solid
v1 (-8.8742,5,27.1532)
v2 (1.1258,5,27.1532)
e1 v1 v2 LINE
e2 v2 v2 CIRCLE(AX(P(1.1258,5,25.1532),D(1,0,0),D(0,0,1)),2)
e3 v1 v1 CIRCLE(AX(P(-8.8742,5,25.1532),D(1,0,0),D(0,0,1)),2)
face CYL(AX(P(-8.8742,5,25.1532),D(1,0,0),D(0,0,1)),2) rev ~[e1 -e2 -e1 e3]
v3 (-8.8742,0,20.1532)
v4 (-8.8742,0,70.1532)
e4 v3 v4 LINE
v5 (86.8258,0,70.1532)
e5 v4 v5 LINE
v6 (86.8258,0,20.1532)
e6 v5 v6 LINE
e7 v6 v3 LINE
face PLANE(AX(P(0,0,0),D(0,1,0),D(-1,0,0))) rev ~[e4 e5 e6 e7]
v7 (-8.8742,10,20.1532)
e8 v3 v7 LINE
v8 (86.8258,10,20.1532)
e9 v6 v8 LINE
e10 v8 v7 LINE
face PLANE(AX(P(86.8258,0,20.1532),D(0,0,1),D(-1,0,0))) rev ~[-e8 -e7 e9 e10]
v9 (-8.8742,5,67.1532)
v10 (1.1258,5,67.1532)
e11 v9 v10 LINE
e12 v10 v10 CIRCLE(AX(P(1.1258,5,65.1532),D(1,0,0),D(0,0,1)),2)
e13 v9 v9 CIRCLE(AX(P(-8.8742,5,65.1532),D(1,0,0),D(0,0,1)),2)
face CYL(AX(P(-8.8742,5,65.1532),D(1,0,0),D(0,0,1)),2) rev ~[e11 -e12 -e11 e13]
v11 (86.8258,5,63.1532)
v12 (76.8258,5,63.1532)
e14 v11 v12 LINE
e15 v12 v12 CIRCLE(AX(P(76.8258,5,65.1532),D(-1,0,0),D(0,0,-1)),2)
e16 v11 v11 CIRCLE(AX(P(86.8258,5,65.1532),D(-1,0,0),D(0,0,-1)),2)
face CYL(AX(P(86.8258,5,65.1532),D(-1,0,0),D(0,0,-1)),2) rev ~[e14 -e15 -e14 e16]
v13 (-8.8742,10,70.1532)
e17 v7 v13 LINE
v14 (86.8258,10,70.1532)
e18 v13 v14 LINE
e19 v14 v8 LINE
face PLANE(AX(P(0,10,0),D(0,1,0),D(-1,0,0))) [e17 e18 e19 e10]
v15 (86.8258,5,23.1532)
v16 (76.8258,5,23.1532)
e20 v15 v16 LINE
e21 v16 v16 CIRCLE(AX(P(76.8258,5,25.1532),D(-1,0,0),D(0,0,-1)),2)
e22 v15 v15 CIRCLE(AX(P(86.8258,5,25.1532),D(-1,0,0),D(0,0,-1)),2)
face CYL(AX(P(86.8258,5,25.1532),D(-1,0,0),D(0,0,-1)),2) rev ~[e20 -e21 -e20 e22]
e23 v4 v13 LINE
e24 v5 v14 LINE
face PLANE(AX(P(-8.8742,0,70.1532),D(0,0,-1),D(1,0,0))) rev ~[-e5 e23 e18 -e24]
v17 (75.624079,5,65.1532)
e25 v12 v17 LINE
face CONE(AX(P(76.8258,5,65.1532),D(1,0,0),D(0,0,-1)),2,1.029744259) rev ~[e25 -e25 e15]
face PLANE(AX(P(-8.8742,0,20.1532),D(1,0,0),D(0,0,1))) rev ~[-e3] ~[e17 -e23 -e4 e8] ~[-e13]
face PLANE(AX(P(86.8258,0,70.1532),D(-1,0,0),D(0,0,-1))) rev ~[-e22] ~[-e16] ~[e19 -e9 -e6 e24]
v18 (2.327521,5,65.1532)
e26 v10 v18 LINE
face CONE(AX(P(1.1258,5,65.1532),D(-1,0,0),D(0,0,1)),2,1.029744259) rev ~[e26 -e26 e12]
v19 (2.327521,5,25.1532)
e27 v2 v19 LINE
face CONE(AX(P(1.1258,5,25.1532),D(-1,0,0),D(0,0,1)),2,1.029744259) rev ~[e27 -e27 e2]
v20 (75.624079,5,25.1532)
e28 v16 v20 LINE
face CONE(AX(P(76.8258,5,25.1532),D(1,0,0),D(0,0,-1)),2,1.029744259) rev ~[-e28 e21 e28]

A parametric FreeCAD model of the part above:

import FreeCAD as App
import Part
import Sketcher
from FreeCAD import Vector

doc = App.newDocument("Part")
body = doc.addObject("PartDesign::Body", "Body")

sketch1 = body.newObject("Sketcher::SketchObject", "Sketch")
sketch1.AttachmentSupport = (doc.getObject("XZ_Plane"), [""])
sketch1.MapMode = "FlatFace"
sketch1.addGeometry(Part.LineSegment(Vector(-9, 20, 0), Vector(-9, 70, 0)), False)
sketch1.addGeometry(Part.LineSegment(Vector(-9, 70, 0), Vector(87, 70, 0)), False)
sketch1.addGeometry(Part.LineSegment(Vector(87, 70, 0), Vector(87, 20, 0)), False)
sketch1.addGeometry(Part.LineSegment(Vector(87, 20, 0), Vector(-9, 20, 0)), False)
sketch1.addConstraint(Sketcher.Constraint("Coincident", 0, 2, 1, 1))
sketch1.addConstraint(Sketcher.Constraint("Coincident", 1, 2, 2, 1))
sketch1.addConstraint(Sketcher.Constraint("Coincident", 2, 2, 3, 1))
sketch1.addConstraint(Sketcher.Constraint("Coincident", 3, 2, 0, 1))
sketch1.addConstraint(Sketcher.Constraint("Vertical", 0))
sketch1.addConstraint(Sketcher.Constraint("Horizontal", 1))
sketch1.addConstraint(Sketcher.Constraint("Vertical", 2))
sketch1.addConstraint(Sketcher.Constraint("Horizontal", 3))
sketch1.addConstraint(Sketcher.Constraint("DistanceY", 0, 1, 0, 2, 50.0))
sketch1.addConstraint(Sketcher.Constraint("DistanceX", 1, 1, 1, 2, 95.7))
sketch1.addConstraint(Sketcher.Constraint("DistanceX", 0, 2, -1, 1, 8.8742))
sketch1.addConstraint(Sketcher.Constraint("DistanceY", -1, 1, 0, 2, 70.1532))
pad1 = body.newObject("PartDesign::Pad", "Pad")
pad1.Profile = sketch1
pad1.Length = 10
pad1.Reversed = True

sketch2 = body.newObject("Sketcher::SketchObject", "Sketch001")
sketch2.AttachmentSupport = (doc.getObject("YZ_Plane"), [""])
sketch2.MapMode = "FlatFace"
sketch2.AttachmentOffset = App.Placement(Vector(0, 0, -8.8742), App.Rotation())
sketch2.addGeometry(Part.Circle(Vector(5, 25.2, 0), Vector(0, 0, 1), 2), False)
sketch2.addGeometry(Part.Circle(Vector(5, 65.2, 0), Vector(0, 0, 1), 2), False)
sketch2.addConstraint(Sketcher.Constraint("Equal", 0, 1))
sketch2.addConstraint(Sketcher.Constraint("Vertical", 0, 3, 1, 3))
sketch2.addConstraint(Sketcher.Constraint("Diameter", 0, 4.0))
sketch2.addConstraint(Sketcher.Constraint("DistanceX", -1, 1, 0, 3, 5.0))
sketch2.addConstraint(Sketcher.Constraint("DistanceY", 0, 3, 1, 3, 40.0))
sketch2.addConstraint(Sketcher.Constraint("DistanceY", -1, 1, 0, 3, 25.1532))
doc.recompute()
hole = body.newObject("PartDesign::Hole", "Hole")
hole.Profile = sketch2
hole.ThreadType = "None"
hole.Diameter = 4
hole.DepthType = "Dimension"
hole.Depth = 10
hole.DrillPoint = "Angled"
hole.DrillPointAngle = 118
hole.Reversed = True

sketch3 = body.newObject("Sketcher::SketchObject", "Sketch002")
sketch3.AttachmentSupport = (doc.getObject("YZ_Plane"), [""])
sketch3.MapMode = "FlatFace"
sketch3.AttachmentOffset = App.Placement(Vector(0, 0, 86.8258), App.Rotation())
sketch3.addGeometry(Part.Circle(Vector(5, 65.2, 0), Vector(0, 0, 1), 2), False)
sketch3.addGeometry(Part.Circle(Vector(5, 25.2, 0), Vector(0, 0, 1), 2), False)
sketch3.addConstraint(Sketcher.Constraint("Equal", 0, 1))
sketch3.addConstraint(Sketcher.Constraint("Vertical", 0, 3, 1, 3))
sketch3.addConstraint(Sketcher.Constraint("Diameter", 0, 4.0))
sketch3.addConstraint(Sketcher.Constraint("DistanceX", -1, 1, 0, 3, 5.0))
sketch3.addConstraint(Sketcher.Constraint("DistanceY", 1, 3, 0, 3, 40.0))
sketch3.addConstraint(Sketcher.Constraint("DistanceY", -1, 1, 0, 3, 65.1532))
doc.recompute()
hole2 = body.newObject("PartDesign::Hole", "Hole001")
hole2.Profile = sketch3
hole2.ThreadType = "None"
hole2.Diameter = 4
hole2.DepthType = "Dimension"
hole2.Depth = 10
hole2.DrillPoint = "Angled"
hole2.DrillPointAngle = 118

doc.recompute()
